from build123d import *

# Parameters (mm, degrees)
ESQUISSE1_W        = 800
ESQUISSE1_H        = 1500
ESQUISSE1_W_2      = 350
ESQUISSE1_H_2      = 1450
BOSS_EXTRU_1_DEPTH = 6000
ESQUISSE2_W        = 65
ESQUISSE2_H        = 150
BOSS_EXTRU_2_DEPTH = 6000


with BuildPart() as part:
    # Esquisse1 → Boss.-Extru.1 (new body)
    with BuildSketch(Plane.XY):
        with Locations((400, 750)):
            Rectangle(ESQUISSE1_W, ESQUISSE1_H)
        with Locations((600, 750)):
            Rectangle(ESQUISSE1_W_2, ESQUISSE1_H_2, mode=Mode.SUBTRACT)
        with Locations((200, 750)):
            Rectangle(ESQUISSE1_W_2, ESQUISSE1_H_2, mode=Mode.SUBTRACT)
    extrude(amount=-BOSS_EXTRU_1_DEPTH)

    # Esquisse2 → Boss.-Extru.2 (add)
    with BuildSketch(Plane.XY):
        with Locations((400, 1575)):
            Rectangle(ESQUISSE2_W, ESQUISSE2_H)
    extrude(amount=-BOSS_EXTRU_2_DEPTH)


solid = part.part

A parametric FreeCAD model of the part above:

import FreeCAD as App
import Part
import Sketcher

doc = App.newDocument("Part")
body = doc.addObject("PartDesign::Body", "Body")

# Sketch on XY plane
sketch1 = doc.addObject("Sketcher::SketchObject", "Sketch")
body.addObject(sketch1)
sketch1.AttachmentSupport = (doc.XY_Plane, [""])
sketch1.MapMode = "FlatFace"
sketch1.addGeometry([
    Part.LineSegment(App.Vector(0, 1500, 0), App.Vector(0, 0, 0)),  # 0
    Part.LineSegment(App.Vector(0, 0, 0), App.Vector(800, 0, 0)),  # 1
    Part.LineSegment(App.Vector(800, 0, 0), App.Vector(800, 1500, 0)),  # 2
    Part.LineSegment(App.Vector(800, 1500, 0), App.Vector(0, 1500, 0)),  # 3
    Part.LineSegment(App.Vector(375, 25, 0), App.Vector(25, 25, 0)),  # 4
    Part.LineSegment(App.Vector(25, 25, 0), App.Vector(25, 1475, 0)),  # 5
    Part.LineSegment(App.Vector(25, 1475, 0), App.Vector(375, 1475, 0)),  # 6
    Part.LineSegment(App.Vector(375, 1475, 0), App.Vector(375, 25, 0)),  # 7
    Part.LineSegment(App.Vector(775, 25, 0), App.Vector(425, 25, 0)),  # 8
    Part.LineSegment(App.Vector(425, 25, 0), App.Vector(425, 1475, 0)),  # 9
    Part.LineSegment(App.Vector(425, 1475, 0), App.Vector(775, 1475, 0)),  # 10
    Part.LineSegment(App.Vector(775, 1475, 0), App.Vector(775, 25, 0)),  # 11
], False)
sketch1.addConstraint([
    Sketcher.Constraint("Coincident", 0, 2, 1, 1),
    Sketcher.Constraint("Coincident", 1, 2, 2, 1),
    Sketcher.Constraint("Coincident", 2, 2, 3, 1),
    Sketcher.Constraint("Coincident", 3, 2, 0, 1),
    Sketcher.Constraint("Coincident", 4, 2, 5, 1),
    Sketcher.Constraint("Coincident", 5, 2, 6, 1),
    Sketcher.Constraint("Coincident", 6, 2, 7, 1),
    Sketcher.Constraint("Coincident", 7, 2, 4, 1),
    Sketcher.Constraint("Coincident", 8, 2, 9, 1),
    Sketcher.Constraint("Coincident", 9, 2, 10, 1),
    Sketcher.Constraint("Coincident", 10, 2, 11, 1),
    Sketcher.Constraint("Coincident", 11, 2, 8, 1),
    Sketcher.Constraint("Vertical", 0),
    Sketcher.Constraint("Horizontal", 1),
    Sketcher.Constraint("Vertical", 2),
    Sketcher.Constraint("Horizontal", 3),
    Sketcher.Constraint("Horizontal", 4),
    Sketcher.Constraint("Vertical", 5),
    Sketcher.Constraint("Horizontal", 6),
    Sketcher.Constraint("Vertical", 7),
    Sketcher.Constraint("Horizontal", 8),
    Sketcher.Constraint("Vertical", 9),
    Sketcher.Constraint("Horizontal", 10),
    Sketcher.Constraint("Vertical", 11),
    Sketcher.Constraint("Coincident", 0, 2, -1, 1),
    Sketcher.Constraint("Horizontal", 7, 2, 8, 2),
    Sketcher.Constraint("Horizontal", 6, 2, 9, 2),
    Sketcher.Constraint("Equal", 6, 8),
    Sketcher.Constraint("DistanceX", 1, 1, 1, 2, 800.0),
    Sketcher.Constraint("DistanceX", 4, 2, 4, 1, 350.0),
    Sketcher.Constraint("DistanceY", 0, 2, 0, 1, 1500.0),
    Sketcher.Constraint("DistanceY", 5, 1, 5, 2, 1450.0),
    Sketcher.Constraint("DistanceX", -1, 1, 4, 2, 25.0),
    Sketcher.Constraint("DistanceY", -1, 1, 4, 2, 25.0),
    Sketcher.Constraint("DistanceX", -1, 1, 8, 2, 425.0),
])
pad1 = doc.addObject("PartDesign::Pad", "Pad")
body.addObject(pad1)
pad1.Profile = sketch1
pad1.Length = 6000
pad1.Reversed = True

# Sketch on XY plane
sketch2 = doc.addObject("Sketcher::SketchObject", "Sketch001")
body.addObject(sketch2)
sketch2.AttachmentSupport = (doc.XY_Plane, [""])
sketch2.MapMode = "FlatFace"
sketch2.addGeometry([
    Part.LineSegment(App.Vector(368, 1650, 0), App.Vector(368, 1500, 0)),
    Part.LineSegment(App.Vector(368, 1500, 0), App.Vector(432, 1500, 0)),
    Part.LineSegment(App.Vector(432, 1500, 0), App.Vector(432, 1650, 0)),
    Part.LineSegment(App.Vector(432, 1650, 0), App.Vector(368, 1650, 0)),
], False)
sketch2.addConstraint([
    Sketcher.Constraint("Coincident", 0, 2, 1, 1),
    Sketcher.Constraint("Coincident", 1, 2, 2, 1),
    Sketcher.Constraint("Coincident", 2, 2, 3, 1),
    Sketcher.Constraint("Coincident", 3, 2, 0, 1),
    Sketcher.Constraint("Vertical", 0),
    Sketcher.Constraint("Horizontal", 1),
    Sketcher.Constraint("Vertical", 2),
    Sketcher.Constraint("Horizontal", 3),
    Sketcher.Constraint("DistanceX", 1, 1, 1, 2, 65.0),
    Sketcher.Constraint("DistanceY", 0, 2, 0, 1, 150.0),
    Sketcher.Constraint("DistanceY", -1, 1, 0, 2, 1500.0),
    Sketcher.Constraint("DistanceX", -1, 1, 0, 2, 367.5),
])
pad2 = doc.addObject("PartDesign::Pad", "Pad001")
body.addObject(pad2)
pad2.Profile = sketch2
pad2.Length = 6000
pad2.Reversed = True

doc.recompute()
